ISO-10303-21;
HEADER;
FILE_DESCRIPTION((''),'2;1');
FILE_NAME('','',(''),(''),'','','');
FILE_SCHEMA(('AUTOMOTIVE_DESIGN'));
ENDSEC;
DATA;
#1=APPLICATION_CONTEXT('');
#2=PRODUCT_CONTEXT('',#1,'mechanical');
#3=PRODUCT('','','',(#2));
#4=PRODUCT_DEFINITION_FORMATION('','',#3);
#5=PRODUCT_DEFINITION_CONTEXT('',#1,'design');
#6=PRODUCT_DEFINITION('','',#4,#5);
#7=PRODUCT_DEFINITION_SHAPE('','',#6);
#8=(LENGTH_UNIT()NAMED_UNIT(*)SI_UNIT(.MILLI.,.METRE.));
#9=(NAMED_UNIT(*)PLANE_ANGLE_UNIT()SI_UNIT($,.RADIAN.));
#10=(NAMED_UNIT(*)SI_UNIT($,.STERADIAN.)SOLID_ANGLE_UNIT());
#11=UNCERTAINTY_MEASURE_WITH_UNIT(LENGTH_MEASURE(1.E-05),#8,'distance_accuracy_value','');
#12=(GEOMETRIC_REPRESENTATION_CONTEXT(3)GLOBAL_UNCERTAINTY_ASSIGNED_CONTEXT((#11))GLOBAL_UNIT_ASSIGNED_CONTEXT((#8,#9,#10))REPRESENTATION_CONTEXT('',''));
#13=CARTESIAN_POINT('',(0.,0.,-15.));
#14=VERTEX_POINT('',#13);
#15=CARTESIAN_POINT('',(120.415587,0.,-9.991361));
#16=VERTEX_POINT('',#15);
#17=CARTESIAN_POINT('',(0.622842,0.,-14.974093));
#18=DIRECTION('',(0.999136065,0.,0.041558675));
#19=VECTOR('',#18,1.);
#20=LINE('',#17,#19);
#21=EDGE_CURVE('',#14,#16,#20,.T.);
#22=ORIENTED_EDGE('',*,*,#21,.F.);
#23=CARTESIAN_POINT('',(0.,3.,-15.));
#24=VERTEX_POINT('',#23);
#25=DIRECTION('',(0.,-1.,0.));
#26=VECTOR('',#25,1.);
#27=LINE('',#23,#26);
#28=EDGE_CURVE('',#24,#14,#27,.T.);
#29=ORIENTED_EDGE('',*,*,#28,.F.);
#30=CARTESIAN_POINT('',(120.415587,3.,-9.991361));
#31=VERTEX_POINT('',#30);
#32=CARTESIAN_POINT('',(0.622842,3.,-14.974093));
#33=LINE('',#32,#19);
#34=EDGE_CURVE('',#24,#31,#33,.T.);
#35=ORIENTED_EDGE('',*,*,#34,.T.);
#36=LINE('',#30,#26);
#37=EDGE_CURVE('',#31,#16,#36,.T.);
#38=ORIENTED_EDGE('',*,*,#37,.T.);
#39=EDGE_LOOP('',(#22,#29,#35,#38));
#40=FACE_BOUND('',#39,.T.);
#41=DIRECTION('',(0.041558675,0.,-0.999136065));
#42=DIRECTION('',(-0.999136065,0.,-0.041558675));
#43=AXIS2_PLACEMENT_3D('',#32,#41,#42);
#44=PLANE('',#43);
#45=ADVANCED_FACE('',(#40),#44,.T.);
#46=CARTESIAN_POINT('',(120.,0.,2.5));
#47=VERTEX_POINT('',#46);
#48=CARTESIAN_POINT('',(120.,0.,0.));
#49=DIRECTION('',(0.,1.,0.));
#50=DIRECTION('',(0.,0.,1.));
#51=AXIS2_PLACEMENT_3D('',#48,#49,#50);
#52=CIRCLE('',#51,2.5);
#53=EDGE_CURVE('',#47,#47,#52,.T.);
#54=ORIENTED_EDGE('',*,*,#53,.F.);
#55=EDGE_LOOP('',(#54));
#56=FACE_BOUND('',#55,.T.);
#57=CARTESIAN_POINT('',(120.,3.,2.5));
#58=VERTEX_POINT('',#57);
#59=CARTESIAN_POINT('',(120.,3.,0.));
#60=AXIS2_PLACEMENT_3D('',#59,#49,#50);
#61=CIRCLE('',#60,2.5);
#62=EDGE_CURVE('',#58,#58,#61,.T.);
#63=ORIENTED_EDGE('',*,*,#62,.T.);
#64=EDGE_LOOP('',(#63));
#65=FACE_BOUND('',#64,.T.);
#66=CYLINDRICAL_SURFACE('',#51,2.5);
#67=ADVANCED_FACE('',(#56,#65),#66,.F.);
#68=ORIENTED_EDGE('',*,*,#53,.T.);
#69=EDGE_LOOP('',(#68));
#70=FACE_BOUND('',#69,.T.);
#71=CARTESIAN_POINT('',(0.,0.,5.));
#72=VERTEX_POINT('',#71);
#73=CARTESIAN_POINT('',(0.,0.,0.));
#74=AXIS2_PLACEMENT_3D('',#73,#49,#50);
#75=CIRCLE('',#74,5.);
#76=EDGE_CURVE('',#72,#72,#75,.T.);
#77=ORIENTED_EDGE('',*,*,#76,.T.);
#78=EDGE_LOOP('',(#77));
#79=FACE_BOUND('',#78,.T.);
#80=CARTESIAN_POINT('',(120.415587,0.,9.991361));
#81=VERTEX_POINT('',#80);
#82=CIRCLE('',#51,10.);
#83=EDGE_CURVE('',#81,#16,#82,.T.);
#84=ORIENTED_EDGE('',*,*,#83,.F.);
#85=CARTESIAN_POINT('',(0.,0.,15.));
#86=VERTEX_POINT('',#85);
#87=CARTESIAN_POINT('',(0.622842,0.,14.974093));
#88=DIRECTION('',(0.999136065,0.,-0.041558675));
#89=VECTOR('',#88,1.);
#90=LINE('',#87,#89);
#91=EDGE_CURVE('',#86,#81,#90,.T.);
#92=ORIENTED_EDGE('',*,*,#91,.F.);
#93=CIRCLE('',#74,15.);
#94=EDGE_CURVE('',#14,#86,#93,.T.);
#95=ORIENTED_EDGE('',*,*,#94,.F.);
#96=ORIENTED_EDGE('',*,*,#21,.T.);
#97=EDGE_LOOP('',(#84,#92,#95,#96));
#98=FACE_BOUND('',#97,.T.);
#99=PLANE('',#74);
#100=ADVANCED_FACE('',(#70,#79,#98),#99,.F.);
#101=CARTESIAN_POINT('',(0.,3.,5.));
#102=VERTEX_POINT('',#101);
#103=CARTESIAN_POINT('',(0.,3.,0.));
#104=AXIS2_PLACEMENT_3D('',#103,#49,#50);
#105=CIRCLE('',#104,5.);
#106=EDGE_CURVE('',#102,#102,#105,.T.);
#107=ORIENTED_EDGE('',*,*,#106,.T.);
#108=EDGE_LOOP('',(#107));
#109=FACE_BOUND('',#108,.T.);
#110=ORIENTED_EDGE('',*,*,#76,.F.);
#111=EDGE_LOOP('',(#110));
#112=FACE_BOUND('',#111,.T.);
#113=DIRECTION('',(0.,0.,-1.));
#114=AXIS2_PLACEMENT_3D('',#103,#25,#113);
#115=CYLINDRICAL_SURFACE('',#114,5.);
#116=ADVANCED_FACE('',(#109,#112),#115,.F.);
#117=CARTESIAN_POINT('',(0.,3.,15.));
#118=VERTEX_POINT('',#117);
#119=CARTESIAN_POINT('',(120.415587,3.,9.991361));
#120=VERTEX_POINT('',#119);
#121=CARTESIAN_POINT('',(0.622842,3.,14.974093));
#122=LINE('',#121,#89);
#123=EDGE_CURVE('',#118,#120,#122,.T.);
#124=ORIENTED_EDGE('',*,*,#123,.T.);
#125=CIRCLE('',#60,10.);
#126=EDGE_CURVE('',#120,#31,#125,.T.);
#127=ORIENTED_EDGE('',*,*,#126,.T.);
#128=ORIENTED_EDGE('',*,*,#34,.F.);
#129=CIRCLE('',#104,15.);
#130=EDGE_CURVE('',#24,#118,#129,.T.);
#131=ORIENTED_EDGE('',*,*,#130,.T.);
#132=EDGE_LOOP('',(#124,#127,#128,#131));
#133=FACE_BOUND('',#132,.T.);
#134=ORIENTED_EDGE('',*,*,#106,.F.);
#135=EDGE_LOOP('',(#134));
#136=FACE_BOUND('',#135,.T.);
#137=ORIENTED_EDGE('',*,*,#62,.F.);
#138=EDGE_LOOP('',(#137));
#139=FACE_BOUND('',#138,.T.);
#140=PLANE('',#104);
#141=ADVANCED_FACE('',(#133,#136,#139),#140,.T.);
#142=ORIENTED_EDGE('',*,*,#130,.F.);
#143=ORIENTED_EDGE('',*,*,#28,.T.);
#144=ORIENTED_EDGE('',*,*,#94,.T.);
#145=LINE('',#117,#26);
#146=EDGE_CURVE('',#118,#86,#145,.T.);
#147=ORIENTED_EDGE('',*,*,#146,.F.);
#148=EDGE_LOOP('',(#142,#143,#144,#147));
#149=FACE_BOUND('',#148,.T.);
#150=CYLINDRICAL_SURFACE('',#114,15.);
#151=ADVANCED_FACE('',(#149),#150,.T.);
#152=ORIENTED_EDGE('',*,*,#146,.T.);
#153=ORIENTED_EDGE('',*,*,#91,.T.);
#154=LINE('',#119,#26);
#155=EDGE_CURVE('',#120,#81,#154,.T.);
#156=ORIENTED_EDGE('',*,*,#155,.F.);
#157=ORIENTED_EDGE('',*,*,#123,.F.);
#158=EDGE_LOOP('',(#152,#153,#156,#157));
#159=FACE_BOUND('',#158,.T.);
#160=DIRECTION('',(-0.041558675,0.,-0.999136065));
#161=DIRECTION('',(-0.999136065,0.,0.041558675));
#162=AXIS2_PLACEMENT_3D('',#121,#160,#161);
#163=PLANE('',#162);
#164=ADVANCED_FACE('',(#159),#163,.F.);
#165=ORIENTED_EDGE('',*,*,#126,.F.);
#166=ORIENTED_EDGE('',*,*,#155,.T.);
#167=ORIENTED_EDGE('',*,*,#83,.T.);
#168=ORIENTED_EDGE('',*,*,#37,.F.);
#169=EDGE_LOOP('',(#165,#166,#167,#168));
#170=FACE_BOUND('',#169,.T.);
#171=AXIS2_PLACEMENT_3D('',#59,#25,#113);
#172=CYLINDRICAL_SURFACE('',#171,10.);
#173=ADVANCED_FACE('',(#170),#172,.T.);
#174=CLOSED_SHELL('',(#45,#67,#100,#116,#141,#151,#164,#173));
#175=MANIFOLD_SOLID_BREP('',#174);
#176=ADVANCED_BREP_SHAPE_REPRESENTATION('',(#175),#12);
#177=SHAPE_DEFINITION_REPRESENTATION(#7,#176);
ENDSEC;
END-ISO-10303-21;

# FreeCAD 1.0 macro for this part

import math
import FreeCAD as App
import Part
import Sketcher

V = App.Vector
Q = App.Units.Quantity

doc = App.newDocument("Part")
body = doc.addObject("PartDesign::Body", "Body")

sketch1 = body.newObject("Sketcher::SketchObject", "Sketch")
sketch1.AttachmentSupport = (doc.getObject("XZ_Plane"), [""])
sketch1.MapMode = "FlatFace"
sketch1.addGeometry(Part.LineSegment(V(0, 15, 0), V(120, 10, 0)), False)
sketch1.addGeometry(Part.ArcOfCircle(Part.Circle(V(120, 0, 0), V(0, 0, 1), 10), math.radians(-88), math.radians(88)), False)
sketch1.addGeometry(Part.LineSegment(V(120, -10, 0), V(0, -15, 0)), False)
sketch1.addGeometry(Part.ArcOfCircle(Part.Circle(V(0, 0, 0), V(0, 0, 1), 15), math.radians(90), math.radians(270)), False)
sketch1.addGeometry(Part.Circle(V(0, 0, 0), V(0, 0, 1), 5), False)
sketch1.addConstraint(Sketcher.Constraint("Tangent", 0, 2, 1, 2))
sketch1.addConstraint(Sketcher.Constraint("Tangent", 1, 1, 2, 1))
sketch1.addConstraint(Sketcher.Constraint("Coincident", 2, 2, 3, 2))
sketch1.addConstraint(Sketcher.Constraint("Coincident", 3, 1, 0, 1))
sketch1.addConstraint(Sketcher.Constraint("Coincident", 3, 3, -1, 1))
sketch1.addConstraint(Sketcher.Constraint("Coincident", 4, 3, -1, 1))
sketch1.addConstraint(Sketcher.Constraint("Symmetric", 0, 2, 1, 1, -1))
sketch1.addConstraint(Sketcher.Constraint("PointOnObject", 2, 2, -2))
sketch1.addConstraint(Sketcher.Constraint("Diameter", 4, Q("10 mm")))
sketch1.addConstraint(Sketcher.Constraint("Radius", 1, Q("10 mm")))
sketch1.addConstraint(Sketcher.Constraint("Radius", 3, Q("15 mm")))
sketch1.addConstraint(Sketcher.Constraint("DistanceX", -1, 1, 1, 3, Q("120 mm")))
pad1 = body.newObject("PartDesign::Pad", "Pad")
pad1.Profile = sketch1
pad1.Length = 3
pad1.Reversed = True

sketch2 = body.newObject("Sketcher::SketchObject", "Sketch001")
sketch2.AttachmentSupport = (doc.getObject("XZ_Plane"), [""])
sketch2.MapMode = "FlatFace"
sketch2.AttachmentOffset = App.Placement(V(0, 0, -3), App.Rotation())
sketch2.addGeometry(Part.Circle(V(120, 0, 0), V(0, 0, 1), 2.5), False)
sketch2.addConstraint(Sketcher.Constraint("PointOnObject", 0, 3, -1))
sketch2.addConstraint(Sketcher.Constraint("Diameter", 0, Q("5 mm")))
sketch2.addConstraint(Sketcher.Constraint("DistanceX", -1, 1, 0, 3, Q("120 mm")))
pocket1 = body.newObject("PartDesign::Pocket", "Pocket")
pocket1.Profile = sketch2
pocket1.Type = "ThroughAll"
pocket1.Reversed = True

doc.recompute()
